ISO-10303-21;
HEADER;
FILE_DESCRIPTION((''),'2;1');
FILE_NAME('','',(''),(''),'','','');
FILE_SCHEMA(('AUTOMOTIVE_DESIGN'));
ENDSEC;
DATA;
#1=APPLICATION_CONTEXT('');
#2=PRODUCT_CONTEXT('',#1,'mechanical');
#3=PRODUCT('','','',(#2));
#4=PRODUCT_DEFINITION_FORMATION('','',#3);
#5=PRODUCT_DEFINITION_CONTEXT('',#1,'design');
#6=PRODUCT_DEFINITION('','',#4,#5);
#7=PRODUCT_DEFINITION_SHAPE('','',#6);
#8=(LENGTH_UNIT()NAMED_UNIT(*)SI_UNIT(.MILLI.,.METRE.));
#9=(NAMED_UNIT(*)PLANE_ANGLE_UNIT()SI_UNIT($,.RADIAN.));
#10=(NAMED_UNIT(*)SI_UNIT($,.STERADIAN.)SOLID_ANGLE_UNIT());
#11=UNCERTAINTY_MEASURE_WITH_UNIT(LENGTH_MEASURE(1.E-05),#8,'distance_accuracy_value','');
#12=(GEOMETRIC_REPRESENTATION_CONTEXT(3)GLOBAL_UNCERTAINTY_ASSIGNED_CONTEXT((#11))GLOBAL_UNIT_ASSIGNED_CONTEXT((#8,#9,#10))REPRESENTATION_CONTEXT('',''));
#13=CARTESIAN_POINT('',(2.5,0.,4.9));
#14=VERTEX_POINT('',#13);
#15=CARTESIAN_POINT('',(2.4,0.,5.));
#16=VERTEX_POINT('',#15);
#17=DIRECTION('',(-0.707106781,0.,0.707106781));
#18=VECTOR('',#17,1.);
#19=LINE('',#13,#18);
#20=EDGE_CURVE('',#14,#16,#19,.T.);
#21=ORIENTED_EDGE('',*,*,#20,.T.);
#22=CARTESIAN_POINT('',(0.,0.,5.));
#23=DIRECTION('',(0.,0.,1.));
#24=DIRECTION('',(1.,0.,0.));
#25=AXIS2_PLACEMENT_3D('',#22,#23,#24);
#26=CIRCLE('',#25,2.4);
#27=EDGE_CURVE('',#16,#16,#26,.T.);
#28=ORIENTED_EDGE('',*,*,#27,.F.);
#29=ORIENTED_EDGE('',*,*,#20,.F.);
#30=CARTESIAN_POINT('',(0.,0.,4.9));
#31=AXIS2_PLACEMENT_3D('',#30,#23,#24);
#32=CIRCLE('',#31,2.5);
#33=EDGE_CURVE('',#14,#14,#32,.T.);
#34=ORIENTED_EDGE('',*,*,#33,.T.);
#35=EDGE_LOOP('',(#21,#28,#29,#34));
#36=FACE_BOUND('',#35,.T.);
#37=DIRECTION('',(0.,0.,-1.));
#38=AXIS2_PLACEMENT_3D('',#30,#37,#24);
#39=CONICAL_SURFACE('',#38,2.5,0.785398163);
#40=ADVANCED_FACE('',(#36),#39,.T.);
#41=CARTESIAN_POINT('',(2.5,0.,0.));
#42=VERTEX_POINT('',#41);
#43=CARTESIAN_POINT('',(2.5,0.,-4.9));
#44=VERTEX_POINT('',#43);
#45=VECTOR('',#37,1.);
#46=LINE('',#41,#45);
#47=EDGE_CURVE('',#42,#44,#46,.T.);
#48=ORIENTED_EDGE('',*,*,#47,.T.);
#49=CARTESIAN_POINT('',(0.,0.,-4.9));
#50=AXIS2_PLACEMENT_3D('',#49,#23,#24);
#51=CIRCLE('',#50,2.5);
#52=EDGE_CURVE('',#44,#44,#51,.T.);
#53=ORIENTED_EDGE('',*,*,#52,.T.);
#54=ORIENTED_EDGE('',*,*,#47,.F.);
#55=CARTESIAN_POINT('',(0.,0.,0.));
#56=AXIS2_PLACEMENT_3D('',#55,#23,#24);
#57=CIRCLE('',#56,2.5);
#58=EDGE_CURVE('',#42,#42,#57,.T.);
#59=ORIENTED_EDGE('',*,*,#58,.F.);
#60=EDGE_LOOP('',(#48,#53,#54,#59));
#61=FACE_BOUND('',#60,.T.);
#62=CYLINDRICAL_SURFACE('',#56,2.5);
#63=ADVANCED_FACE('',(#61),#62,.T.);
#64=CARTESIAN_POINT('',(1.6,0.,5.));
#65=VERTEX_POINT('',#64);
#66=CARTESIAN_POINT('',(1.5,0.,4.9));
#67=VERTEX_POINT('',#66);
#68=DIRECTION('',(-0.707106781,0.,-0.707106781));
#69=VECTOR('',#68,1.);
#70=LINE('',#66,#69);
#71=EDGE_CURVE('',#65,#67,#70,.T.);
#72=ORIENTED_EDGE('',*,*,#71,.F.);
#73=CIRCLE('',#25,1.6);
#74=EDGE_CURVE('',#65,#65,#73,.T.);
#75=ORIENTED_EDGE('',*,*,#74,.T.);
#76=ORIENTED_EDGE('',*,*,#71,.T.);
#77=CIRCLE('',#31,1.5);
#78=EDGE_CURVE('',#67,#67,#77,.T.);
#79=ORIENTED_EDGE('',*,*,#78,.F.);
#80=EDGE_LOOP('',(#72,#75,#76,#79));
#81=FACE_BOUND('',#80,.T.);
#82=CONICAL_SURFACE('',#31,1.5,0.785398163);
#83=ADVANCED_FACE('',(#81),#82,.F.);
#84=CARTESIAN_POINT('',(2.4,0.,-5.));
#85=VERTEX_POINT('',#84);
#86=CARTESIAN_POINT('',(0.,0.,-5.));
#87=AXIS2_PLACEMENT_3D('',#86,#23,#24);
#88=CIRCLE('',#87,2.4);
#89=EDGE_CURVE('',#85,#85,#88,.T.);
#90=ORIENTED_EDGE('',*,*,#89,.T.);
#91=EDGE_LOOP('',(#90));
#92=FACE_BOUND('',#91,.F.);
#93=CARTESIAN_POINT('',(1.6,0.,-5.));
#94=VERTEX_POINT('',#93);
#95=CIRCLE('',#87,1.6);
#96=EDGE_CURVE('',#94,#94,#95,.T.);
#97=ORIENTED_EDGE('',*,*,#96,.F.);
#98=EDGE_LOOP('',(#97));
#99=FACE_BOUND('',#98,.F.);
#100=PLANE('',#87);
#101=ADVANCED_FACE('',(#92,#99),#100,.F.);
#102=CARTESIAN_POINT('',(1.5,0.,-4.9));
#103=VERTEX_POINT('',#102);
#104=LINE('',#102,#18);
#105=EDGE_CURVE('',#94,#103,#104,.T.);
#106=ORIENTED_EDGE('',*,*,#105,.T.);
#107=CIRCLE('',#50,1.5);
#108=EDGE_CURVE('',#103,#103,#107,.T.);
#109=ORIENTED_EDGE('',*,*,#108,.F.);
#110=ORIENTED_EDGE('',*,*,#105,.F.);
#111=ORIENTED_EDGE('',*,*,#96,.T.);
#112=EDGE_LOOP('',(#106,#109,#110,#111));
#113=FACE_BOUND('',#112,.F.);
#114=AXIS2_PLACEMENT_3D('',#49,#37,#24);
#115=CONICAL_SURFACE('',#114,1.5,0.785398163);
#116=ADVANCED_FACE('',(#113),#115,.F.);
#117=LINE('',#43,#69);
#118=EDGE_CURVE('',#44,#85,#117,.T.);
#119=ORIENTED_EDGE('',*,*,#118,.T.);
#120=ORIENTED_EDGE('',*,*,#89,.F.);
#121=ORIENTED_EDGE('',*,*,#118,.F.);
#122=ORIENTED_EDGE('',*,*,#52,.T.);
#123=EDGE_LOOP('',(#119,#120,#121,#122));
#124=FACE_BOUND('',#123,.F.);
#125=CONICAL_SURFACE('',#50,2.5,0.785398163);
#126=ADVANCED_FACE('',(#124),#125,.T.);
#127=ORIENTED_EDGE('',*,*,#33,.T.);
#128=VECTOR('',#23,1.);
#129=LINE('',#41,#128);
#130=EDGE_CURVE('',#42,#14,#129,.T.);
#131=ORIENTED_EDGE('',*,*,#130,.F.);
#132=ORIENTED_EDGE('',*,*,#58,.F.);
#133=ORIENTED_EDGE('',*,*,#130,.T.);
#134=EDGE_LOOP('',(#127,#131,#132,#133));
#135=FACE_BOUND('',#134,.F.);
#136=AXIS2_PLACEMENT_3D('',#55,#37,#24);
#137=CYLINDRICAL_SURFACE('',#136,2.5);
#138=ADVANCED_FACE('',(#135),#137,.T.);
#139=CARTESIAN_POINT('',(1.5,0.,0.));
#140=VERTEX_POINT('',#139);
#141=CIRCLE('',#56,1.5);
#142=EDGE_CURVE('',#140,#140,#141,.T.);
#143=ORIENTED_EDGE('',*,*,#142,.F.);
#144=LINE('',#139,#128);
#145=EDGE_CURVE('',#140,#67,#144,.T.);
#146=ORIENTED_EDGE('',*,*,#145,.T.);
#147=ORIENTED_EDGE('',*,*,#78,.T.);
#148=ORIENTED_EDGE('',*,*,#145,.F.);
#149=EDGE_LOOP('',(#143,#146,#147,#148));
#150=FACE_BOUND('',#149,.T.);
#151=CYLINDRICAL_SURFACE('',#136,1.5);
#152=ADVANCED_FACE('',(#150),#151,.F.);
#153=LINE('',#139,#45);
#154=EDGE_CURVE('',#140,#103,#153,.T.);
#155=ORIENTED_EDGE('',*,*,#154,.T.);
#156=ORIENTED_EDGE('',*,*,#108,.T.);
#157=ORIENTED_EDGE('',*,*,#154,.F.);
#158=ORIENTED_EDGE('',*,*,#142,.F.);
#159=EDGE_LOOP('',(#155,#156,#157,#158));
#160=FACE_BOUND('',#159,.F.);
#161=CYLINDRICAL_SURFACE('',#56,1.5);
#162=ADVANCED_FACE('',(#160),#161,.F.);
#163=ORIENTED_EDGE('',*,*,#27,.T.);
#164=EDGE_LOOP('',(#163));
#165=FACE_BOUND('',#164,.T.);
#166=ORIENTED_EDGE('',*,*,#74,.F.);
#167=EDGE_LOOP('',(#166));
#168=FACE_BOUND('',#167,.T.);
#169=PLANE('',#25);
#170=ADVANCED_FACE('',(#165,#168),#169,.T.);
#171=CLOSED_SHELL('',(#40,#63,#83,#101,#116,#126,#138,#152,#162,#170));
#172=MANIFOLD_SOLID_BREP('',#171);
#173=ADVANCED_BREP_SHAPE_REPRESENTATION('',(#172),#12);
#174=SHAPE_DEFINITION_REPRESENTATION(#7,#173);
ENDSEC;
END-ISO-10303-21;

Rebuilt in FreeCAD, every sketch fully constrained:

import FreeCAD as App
import Part
import Sketcher
from FreeCAD import Vector
Q = App.Units.Quantity


def edges_at(feature, points):
    """Names of the edges that pass closest to the given points."""
    edges = feature.Shape.Edges
    near = lambda p: min(range(len(edges)), key=lambda i: edges[i].distToShape(Part.Vertex(*p))[0])
    return sorted({f"Edge{near(p) + 1}" for p in points})

doc = App.newDocument("Part")
params = doc.addObject("Spreadsheet::Sheet", "Params")
for row, (alias, value) in enumerate([
    ("sketch1_diameter", "5 mm"),
    ("sketch1_diameter2", "3 mm"),
    ("pad1_length", "10 mm"),
    ("chamfer_size", "0.1 mm"),
], start=1):
    params.set(f"A{row}", alias)
    params.set(f"B{row}", "=" + value)
    params.setAlias(f"B{row}", alias)

body = doc.addObject("PartDesign::Body", "Body")

sketch1 = doc.addObject("Sketcher::SketchObject", "Sketch")
body.addObject(sketch1)
sketch1.AttachmentSupport = (doc.XY_Plane, [""])
sketch1.MapMode = "FlatFace"
sketch1.addGeometry(Part.Circle(Vector(0, 0, 0), Vector(0, 0, 1), 2.5), False)
sketch1.addGeometry(Part.Circle(Vector(0, 0, 0), Vector(0, 0, 1), 1.5), False)
sketch1.addConstraint(Sketcher.Constraint("Coincident", 0, 3, -1, 1))
sketch1.addConstraint(Sketcher.Constraint("Coincident", 1, 3, -1, 1))
sketch1.addConstraint(Sketcher.Constraint("Diameter", 0, Q("5 mm")))
sketch1.addConstraint(Sketcher.Constraint("Diameter", 1, Q("3 mm")))
sketch1.setExpression("Constraints[2]", "Params.sketch1_diameter")
sketch1.setExpression("Constraints[3]", "Params.sketch1_diameter2")
pad1 = doc.addObject("PartDesign::Pad", "Pad")
body.addObject(pad1)
pad1.Profile = sketch1
pad1.setExpression("Length", "Params.pad1_length")
pad1.Midplane = True
doc.recompute()

chamfer = doc.addObject("PartDesign::Chamfer", "Chamfer")
body.addObject(chamfer)
chamfer.Base = (pad1, edges_at(pad1, [
    (-2.5, 0, 5),
    (-1.5, 0, 5),
    (-1.5, 0, -5),
    (-2.5, 0, -5),
]))
chamfer.setExpression("Size", "Params.chamfer_size")

doc.recompute()
